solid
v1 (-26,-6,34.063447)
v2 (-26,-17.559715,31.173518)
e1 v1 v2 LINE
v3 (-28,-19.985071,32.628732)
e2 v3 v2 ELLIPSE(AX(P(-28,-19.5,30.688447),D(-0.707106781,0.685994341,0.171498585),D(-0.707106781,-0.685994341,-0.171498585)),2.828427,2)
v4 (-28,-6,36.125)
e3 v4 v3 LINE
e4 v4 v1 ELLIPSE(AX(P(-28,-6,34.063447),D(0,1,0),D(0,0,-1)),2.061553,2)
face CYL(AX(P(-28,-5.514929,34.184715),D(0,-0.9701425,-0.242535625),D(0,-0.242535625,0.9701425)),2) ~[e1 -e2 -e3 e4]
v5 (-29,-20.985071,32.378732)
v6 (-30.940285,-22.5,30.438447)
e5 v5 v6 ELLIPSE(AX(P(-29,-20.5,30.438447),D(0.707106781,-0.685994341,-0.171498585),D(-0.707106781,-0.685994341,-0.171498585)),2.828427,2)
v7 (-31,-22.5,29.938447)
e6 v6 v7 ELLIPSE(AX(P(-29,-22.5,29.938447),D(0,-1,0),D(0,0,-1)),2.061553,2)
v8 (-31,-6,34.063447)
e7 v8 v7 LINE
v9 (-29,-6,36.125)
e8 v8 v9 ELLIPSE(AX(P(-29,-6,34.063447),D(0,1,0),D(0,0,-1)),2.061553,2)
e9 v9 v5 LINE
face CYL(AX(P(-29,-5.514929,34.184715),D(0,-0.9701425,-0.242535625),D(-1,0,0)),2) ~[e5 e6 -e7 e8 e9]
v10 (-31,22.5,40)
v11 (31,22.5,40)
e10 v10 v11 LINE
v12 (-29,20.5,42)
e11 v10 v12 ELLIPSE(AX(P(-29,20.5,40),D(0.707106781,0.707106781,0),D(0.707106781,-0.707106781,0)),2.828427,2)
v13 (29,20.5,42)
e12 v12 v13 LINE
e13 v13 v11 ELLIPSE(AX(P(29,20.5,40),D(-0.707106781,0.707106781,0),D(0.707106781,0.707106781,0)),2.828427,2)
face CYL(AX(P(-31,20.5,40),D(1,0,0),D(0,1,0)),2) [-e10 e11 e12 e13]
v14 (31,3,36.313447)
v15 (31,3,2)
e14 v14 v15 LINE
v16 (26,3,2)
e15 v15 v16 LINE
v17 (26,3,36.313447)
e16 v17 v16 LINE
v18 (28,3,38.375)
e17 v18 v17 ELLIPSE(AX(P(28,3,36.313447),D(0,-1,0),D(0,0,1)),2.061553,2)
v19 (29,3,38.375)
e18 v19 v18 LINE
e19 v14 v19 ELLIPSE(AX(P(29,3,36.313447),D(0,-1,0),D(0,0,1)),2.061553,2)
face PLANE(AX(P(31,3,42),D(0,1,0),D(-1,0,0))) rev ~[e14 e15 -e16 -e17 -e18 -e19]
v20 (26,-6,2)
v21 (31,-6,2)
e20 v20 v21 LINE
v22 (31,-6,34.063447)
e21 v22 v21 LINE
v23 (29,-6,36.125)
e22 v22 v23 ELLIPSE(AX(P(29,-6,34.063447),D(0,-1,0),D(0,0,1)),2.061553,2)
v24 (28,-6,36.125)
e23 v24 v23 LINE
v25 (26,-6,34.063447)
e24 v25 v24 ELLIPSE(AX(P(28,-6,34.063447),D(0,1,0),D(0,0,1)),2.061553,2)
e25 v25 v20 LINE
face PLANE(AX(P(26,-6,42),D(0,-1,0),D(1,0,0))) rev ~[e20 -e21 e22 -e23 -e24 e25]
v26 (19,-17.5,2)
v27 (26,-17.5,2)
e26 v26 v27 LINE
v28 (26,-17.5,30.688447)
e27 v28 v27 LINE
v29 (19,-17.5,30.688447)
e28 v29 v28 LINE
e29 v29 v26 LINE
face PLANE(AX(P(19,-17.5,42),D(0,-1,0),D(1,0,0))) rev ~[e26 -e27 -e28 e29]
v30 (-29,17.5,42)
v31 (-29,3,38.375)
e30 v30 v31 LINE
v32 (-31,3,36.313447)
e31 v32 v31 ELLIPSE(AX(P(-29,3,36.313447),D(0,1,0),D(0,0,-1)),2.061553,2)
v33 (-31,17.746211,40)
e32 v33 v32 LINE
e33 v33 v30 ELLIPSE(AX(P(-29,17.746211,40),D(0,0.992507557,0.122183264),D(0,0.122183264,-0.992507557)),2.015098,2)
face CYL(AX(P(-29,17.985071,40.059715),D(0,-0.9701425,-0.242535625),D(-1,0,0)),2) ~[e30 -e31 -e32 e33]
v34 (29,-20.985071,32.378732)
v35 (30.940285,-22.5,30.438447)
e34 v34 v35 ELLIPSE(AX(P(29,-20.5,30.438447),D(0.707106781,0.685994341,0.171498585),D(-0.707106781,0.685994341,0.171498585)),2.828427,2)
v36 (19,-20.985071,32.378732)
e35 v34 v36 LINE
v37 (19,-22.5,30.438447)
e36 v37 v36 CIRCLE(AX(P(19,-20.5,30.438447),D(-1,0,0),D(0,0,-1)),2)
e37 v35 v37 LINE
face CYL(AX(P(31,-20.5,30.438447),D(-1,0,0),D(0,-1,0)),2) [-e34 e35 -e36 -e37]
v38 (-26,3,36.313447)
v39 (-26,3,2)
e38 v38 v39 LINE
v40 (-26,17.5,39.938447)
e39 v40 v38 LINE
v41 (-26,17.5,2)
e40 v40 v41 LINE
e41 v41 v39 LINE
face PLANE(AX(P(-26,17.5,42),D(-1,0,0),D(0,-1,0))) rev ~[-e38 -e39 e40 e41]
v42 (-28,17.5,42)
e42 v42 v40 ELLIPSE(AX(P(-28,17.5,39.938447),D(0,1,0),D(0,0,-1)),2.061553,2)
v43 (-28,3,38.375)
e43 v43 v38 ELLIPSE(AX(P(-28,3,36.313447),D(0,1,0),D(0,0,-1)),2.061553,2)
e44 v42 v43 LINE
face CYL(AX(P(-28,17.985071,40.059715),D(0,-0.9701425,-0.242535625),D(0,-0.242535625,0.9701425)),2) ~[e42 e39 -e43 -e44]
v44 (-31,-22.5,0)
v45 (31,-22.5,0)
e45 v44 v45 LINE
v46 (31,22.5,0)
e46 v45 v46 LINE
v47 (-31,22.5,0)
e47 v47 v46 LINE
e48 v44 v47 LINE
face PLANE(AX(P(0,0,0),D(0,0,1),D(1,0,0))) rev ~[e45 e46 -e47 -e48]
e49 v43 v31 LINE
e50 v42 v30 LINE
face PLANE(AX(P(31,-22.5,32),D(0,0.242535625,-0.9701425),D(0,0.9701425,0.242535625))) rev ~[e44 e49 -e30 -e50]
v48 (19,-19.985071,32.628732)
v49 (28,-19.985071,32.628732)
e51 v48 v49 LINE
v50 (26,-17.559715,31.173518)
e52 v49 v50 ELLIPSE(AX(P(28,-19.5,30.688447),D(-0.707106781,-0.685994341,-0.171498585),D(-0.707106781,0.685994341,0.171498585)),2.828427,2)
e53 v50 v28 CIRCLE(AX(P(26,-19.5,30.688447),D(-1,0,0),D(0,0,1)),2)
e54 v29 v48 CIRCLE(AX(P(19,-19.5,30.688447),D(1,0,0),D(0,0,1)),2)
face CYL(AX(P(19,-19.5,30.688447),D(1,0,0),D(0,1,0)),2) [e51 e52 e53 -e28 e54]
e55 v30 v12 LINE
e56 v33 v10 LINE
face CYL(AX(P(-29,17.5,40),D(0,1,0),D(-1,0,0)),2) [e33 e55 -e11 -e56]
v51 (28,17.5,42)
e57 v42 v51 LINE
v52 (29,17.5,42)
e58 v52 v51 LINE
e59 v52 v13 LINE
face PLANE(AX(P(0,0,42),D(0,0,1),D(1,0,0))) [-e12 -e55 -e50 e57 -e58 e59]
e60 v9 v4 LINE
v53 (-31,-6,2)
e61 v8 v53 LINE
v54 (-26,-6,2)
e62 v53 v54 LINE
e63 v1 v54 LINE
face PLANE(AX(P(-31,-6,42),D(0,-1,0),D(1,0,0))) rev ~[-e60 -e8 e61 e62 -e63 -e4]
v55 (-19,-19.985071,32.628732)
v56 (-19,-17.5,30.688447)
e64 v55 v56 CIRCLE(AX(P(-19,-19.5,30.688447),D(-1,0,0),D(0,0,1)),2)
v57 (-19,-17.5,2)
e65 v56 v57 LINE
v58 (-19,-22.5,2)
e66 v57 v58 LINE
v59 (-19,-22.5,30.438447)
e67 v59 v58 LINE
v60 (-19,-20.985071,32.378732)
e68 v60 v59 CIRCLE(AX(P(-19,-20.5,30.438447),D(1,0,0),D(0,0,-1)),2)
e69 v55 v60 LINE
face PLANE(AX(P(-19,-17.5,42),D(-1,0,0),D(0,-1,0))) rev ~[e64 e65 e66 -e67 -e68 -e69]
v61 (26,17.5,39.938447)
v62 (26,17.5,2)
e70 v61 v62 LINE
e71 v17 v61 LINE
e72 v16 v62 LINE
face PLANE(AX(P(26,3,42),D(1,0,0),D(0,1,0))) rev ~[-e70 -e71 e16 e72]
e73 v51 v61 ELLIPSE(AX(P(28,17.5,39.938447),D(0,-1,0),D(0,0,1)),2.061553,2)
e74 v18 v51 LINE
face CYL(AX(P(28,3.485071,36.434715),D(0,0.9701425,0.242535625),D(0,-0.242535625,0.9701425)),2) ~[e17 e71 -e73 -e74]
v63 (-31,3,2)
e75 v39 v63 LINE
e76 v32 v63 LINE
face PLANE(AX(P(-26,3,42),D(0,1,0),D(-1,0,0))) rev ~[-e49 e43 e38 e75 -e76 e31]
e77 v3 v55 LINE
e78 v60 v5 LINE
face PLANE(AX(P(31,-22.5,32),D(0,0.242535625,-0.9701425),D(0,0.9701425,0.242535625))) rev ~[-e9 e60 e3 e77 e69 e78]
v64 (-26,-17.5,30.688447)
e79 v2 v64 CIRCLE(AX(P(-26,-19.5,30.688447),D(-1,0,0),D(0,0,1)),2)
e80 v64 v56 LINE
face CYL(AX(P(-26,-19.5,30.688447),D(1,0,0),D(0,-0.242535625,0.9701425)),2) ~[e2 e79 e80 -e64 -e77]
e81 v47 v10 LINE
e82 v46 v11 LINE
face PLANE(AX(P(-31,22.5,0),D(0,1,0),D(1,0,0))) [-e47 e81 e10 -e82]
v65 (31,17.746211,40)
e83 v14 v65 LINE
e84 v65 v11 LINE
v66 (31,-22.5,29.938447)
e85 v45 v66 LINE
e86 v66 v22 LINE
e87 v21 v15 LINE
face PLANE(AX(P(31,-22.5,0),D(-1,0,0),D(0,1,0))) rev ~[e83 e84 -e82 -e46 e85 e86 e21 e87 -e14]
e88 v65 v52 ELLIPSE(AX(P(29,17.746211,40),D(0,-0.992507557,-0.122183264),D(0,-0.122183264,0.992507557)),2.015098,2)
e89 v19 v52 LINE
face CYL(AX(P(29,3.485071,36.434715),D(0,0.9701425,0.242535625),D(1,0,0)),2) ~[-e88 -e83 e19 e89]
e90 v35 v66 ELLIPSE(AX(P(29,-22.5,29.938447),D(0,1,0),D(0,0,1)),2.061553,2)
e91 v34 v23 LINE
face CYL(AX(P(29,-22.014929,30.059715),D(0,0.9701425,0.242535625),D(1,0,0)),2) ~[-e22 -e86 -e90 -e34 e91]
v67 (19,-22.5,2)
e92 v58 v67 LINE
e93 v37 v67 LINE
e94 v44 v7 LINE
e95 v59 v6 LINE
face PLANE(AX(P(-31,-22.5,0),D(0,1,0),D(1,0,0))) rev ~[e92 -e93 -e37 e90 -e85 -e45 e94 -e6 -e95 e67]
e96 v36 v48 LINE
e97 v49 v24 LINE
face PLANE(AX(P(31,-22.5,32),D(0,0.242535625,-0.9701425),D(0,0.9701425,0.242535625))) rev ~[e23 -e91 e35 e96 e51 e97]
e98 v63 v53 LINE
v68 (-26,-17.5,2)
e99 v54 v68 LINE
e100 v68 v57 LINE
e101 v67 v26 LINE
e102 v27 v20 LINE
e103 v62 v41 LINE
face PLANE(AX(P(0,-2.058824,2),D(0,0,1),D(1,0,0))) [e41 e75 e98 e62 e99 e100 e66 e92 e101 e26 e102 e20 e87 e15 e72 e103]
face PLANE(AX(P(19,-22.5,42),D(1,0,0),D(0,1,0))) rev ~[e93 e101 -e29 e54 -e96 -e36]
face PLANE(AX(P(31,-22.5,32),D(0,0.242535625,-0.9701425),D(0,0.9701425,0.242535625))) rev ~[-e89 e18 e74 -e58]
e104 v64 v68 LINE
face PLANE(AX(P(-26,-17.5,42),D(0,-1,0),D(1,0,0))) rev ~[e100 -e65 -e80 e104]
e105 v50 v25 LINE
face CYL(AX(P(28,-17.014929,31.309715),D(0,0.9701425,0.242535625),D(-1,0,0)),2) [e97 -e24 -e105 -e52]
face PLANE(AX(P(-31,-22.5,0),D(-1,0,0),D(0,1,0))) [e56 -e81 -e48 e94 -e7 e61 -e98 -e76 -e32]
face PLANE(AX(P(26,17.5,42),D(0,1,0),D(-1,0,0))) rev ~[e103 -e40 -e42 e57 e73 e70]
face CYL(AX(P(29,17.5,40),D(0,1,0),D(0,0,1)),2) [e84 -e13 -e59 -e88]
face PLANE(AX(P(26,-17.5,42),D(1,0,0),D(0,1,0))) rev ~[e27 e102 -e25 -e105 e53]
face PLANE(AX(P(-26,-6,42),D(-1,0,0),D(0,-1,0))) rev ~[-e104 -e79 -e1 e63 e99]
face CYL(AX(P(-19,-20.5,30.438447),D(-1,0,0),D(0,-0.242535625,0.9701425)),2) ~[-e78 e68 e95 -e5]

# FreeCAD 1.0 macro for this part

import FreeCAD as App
import Part
import Sketcher


def edges_at(feature, points):
    """Names of the edges that pass closest to the given points."""
    edges = feature.Shape.Edges
    near = lambda p: min(range(len(edges)), key=lambda i: edges[i].distToShape(Part.Vertex(*p))[0])
    return sorted({f"Edge{near(p) + 1}" for p in points})


def add_polygon(sketch, points):
    """Adds a closed chain of lines whose ends are joined by coincident constraints."""
    first, n = sketch.GeometryCount, len(points)
    for a, b in zip(points, points[1:] + points[:1]):
        sketch.addGeometry(Part.LineSegment(App.Vector(*a, 0), App.Vector(*b, 0)), False)
    for i in range(n):
        sketch.addConstraint(Sketcher.Constraint("Coincident", first + i, 2, first + (i + 1) % n, 1))

doc = App.newDocument("Part")
params = doc.addObject("Spreadsheet::Sheet", "Params")
for row, (alias, value) in enumerate([
    ("sketch1_width", "62 mm"),
    ("sketch1_height", "45 mm"),
    ("pad1_length", "42 mm"),
    ("sketch2_width", "38 mm"),
    ("sketch2_width2", "7 mm"),
    ("sketch2_width3", "5 mm"),
    ("sketch2_height", "9 mm"),
    ("sketch2_height2", "11.5 mm"),
    ("pocket1_length", "40 mm"),
    ("sketch3_width", "40 mm"),
    ("sketch3_height", "10 mm"),
    ("fillet_radius", "2 mm"),
], start=1):
    params.set(f"A{row}", alias)
    params.set(f"B{row}", "=" + value)
    params.setAlias(f"B{row}", alias)

body = doc.addObject("PartDesign::Body", "Body")

# Sketch on XY plane
sketch1 = doc.addObject("Sketcher::SketchObject", "Sketch")
body.addObject(sketch1)
sketch1.AttachmentSupport = (doc.XY_Plane, [""])
sketch1.MapMode = "FlatFace"
add_polygon(sketch1, [(-31, 22.5), (-31, -22.5), (31, -22.5), (31, 22.5)])  # lines 0-3
sketch1.addConstraint([
    Sketcher.Constraint("Vertical", 0),
    Sketcher.Constraint("Horizontal", 1),
    Sketcher.Constraint("Vertical", 2),
    Sketcher.Constraint("Horizontal", 3),
    Sketcher.Constraint("Symmetric", 0, 2, 2, 2, -1, 1),
    Sketcher.Constraint("DistanceX", 1, 1, 1, 2, 62.0),
    Sketcher.Constraint("DistanceY", 0, 2, 0, 1, 45.0),
])
sketch1.setExpression("Constraints[9]", "Params.sketch1_width")
sketch1.setExpression("Constraints[10]", "Params.sketch1_height")
pad1 = doc.addObject("PartDesign::Pad", "Pad")
body.addObject(pad1)
pad1.Profile = sketch1
pad1.setExpression("Length", "Params.pad1_length")

# Sketch on XY plane
sketch2 = doc.addObject("Sketcher::SketchObject", "Sketch001")
body.addObject(sketch2)
sketch2.AttachmentSupport = (doc.XY_Plane, [""])
sketch2.MapMode = "FlatFace"
sketch2.AttachmentOffset = App.Placement(App.Vector(0, 0, 42), App.Rotation())
add_polygon(sketch2, [(-19, -17.5), (-19, -22.5), (19, -22.5), (19, -17.5), (26, -17.5), (26, -6), (31, -6), (31, 3), (26, 3), (26, 17.5), (-26, 17.5), (-26, 3), (-31, 3), (-31, -6), (-26, -6), (-26, -17.5)])  # lines 0-15
sketch2.addConstraint([
    Sketcher.Constraint("Vertical", 0),
    Sketcher.Constraint("Horizontal", 1),
    Sketcher.Constraint("Vertical", 2),
    Sketcher.Constraint("Horizontal", 3),
    Sketcher.Constraint("Vertical", 4),
    Sketcher.Constraint("Horizontal", 5),
    Sketcher.Constraint("Vertical", 6),
    Sketcher.Constraint("Horizontal", 7),
    Sketcher.Constraint("Vertical", 8),
    Sketcher.Constraint("Horizontal", 9),
    Sketcher.Constraint("Vertical", 10),
    Sketcher.Constraint("Horizontal", 11),
    Sketcher.Constraint("Vertical", 12),
    Sketcher.Constraint("Horizontal", 13),
    Sketcher.Constraint("Vertical", 14),
    Sketcher.Constraint("Horizontal", 15),
    Sketcher.Constraint("Symmetric", 3, 2, 9, 2, -1, 1),
    Sketcher.Constraint("Symmetric", 8, 2, 14, 2, -1, 1),
    Sketcher.Constraint("Symmetric", 7, 2, 10, 2, -2),
    Sketcher.Constraint("Symmetric", 5, 2, 12, 2, -2),
    Sketcher.Constraint("Equal", 3, 15),
    Sketcher.Constraint("Equal", 13, 0),
    Sketcher.Constraint("DistanceX", 1, 1, 1, 2, 38.0),
    Sketcher.Constraint("DistanceX", 3, 1, 3, 2, 7.0),
    Sketcher.Constraint("DistanceX", 5, 1, 5, 2, 5.0),
    Sketcher.Constraint("DistanceY", 6, 1, 6, 2, 9.0),
    Sketcher.Constraint("DistanceY", 4, 1, 4, 2, 11.5),
    Sketcher.Constraint("DistanceY", 8, 1, 8, 2, 14.5),
])
sketch2.setExpression("Constraints[38]", "Params.sketch2_width")
sketch2.setExpression("Constraints[39]", "Params.sketch2_width2")
sketch2.setExpression("Constraints[40]", "Params.sketch2_width3")
sketch2.setExpression("Constraints[41]", "Params.sketch2_height")
sketch2.setExpression("Constraints[42]", "Params.sketch2_height2")
pocket1 = doc.addObject("PartDesign::Pocket", "Pocket")
body.addObject(pocket1)
pocket1.Profile = sketch2
pocket1.setExpression("Length", "Params.pocket1_length")

# Sketch on YZ plane
sketch3 = doc.addObject("Sketcher::SketchObject", "Sketch002")
body.addObject(sketch3)
sketch3.AttachmentSupport = (doc.YZ_Plane, [""])
sketch3.MapMode = "FlatFace"
sketch3.AttachmentOffset = App.Placement(App.Vector(0, 0, 31), App.Rotation())
add_polygon(sketch3, [(17.5, 42), (-22.5, 42), (-22.5, 32)])  # lines 0-2
sketch3.addConstraint([
    Sketcher.Constraint("Horizontal", 0),
    Sketcher.Constraint("Vertical", 1),
    Sketcher.Constraint("DistanceX", 0, 2, 0, 1, 40.0),
    Sketcher.Constraint("DistanceY", 1, 2, 1, 1, 10.0),
    Sketcher.Constraint("DistanceY", -1, 1, 0, 2, 42.0),
    Sketcher.Constraint("DistanceX", 0, 2, -1, 1, 22.5),
])
sketch3.setExpression("Constraints[5]", "Params.sketch3_width")
sketch3.setExpression("Constraints[6]", "Params.sketch3_height")
pocket2 = doc.addObject("PartDesign::Pocket", "Pocket001")
body.addObject(pocket2)
pocket2.Profile = sketch3
pocket2.Type = "ThroughAll"
doc.recompute()

fillet = doc.addObject("PartDesign::Fillet", "Fillet")
body.addObject(fillet)
fillet.Base = (pocket2, edges_at(pocket2, [
    (22.5, -17.5, 33.25),
    (26, -11.75, 34.688),
    (31, -14.25, 34.062),
    (25, -22.5, 32),
    (26, 10.25, 40.188),
    (-26, 10.25, 40.188),
    (-31, -14.25, 34.062),
    (-31, 10.25, 40.188),
    (-26, -11.75, 34.688),
    (-22.5, -17.5, 33.25),
    (-25, -22.5, 32),
    (31, 10.25, 40.188),
    (31, 20, 42),
    (0, 22.5, 42),
    (-31, 20, 42),
]))
fillet.setExpression("Radius", "Params.fillet_radius")

doc.recompute()
